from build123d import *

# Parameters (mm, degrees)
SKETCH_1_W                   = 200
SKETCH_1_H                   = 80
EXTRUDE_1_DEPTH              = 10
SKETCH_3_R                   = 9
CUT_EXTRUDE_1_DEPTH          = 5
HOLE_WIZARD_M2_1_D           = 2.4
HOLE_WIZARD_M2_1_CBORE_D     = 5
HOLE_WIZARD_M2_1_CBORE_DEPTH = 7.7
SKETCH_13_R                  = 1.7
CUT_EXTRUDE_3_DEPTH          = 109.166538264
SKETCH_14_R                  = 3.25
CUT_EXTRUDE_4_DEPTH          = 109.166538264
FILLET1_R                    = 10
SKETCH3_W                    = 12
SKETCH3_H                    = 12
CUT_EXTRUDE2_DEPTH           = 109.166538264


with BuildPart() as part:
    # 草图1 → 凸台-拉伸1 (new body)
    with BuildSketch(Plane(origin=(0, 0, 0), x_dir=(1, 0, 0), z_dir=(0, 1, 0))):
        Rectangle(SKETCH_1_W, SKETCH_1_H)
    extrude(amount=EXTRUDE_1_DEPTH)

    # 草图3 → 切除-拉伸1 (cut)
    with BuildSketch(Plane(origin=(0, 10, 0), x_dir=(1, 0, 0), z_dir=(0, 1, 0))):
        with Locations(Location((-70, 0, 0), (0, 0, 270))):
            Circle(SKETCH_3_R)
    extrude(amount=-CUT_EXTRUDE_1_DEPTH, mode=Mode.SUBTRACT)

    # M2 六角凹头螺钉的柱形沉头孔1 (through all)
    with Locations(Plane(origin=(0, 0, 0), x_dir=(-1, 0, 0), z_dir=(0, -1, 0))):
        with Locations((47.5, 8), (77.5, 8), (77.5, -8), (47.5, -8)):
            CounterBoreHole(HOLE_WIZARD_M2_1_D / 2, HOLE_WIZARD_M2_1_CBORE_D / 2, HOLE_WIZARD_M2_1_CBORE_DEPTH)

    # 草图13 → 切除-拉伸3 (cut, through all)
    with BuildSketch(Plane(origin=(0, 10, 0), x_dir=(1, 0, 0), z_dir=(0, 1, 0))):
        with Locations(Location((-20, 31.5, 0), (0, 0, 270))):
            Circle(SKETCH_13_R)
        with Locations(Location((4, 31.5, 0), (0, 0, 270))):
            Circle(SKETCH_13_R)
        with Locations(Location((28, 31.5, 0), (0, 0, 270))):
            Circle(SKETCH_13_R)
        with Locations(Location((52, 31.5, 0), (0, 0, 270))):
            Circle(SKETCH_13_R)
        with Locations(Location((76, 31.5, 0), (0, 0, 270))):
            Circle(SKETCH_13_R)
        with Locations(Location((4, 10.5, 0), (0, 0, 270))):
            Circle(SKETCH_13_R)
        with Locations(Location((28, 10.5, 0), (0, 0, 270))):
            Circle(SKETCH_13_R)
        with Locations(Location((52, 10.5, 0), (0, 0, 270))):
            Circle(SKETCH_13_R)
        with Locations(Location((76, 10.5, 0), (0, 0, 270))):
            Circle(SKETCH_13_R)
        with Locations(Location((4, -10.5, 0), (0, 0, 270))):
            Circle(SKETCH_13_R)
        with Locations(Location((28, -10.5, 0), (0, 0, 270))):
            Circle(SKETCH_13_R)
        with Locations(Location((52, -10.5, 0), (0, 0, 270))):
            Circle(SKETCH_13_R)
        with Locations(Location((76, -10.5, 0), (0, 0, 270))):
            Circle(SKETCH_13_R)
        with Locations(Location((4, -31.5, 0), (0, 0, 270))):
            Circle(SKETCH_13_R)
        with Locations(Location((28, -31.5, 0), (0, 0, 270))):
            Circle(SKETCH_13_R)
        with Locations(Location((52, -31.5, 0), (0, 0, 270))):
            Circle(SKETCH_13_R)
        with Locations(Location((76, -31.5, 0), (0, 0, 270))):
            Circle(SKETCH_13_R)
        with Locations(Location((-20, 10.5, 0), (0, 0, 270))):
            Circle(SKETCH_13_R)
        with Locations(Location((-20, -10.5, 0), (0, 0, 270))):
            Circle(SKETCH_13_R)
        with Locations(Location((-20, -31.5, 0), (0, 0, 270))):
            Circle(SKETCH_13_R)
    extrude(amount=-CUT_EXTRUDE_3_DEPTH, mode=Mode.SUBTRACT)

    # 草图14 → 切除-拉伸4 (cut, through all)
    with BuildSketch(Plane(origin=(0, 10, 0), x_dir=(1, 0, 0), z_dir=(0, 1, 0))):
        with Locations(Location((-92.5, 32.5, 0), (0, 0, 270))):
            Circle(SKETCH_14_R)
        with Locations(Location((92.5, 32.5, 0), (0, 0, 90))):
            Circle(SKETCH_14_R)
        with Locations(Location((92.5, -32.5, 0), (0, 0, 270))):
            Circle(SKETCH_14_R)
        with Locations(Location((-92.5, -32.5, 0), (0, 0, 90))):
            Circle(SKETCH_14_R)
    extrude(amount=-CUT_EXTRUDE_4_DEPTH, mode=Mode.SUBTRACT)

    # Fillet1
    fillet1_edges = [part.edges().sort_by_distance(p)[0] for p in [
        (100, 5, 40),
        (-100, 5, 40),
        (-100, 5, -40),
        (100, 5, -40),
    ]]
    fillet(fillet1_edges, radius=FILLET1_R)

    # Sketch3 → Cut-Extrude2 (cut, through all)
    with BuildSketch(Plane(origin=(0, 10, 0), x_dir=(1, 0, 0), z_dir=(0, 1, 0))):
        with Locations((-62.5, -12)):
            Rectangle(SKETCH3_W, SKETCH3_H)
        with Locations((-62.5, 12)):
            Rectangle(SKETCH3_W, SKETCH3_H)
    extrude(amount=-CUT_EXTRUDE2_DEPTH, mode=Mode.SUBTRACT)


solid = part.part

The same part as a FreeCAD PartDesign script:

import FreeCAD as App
import Part
import Sketcher

V = App.Vector
Q = App.Units.Quantity


def edges_at(feature, points):
    """Names of the edges that pass closest to the given points."""
    edges = feature.Shape.Edges
    near = lambda p: min(range(len(edges)), key=lambda i: edges[i].distToShape(Part.Vertex(*p))[0])
    return sorted({f"Edge{near(p) + 1}" for p in points})

doc = App.newDocument("Part")
body = doc.addObject("PartDesign::Body", "Body")

# Sketch on XZ plane
sketch1 = body.newObject("Sketcher::SketchObject", "Sketch")
sketch1.AttachmentSupport = (doc.getObject("XZ_Plane"), [""])
sketch1.MapMode = "FlatFace"
sketch1.addGeometry(Part.LineSegment(V(-100, -40, 0), V(-100, 40, 0)), False)
sketch1.addGeometry(Part.LineSegment(V(-100, 40, 0), V(100, 40, 0)), False)
sketch1.addGeometry(Part.LineSegment(V(100, 40, 0), V(100, -40, 0)), False)
sketch1.addGeometry(Part.LineSegment(V(100, -40, 0), V(-100, -40, 0)), False)
sketch1.addConstraint(Sketcher.Constraint("Coincident", 0, 2, 1, 1))
sketch1.addConstraint(Sketcher.Constraint("Coincident", 1, 2, 2, 1))
sketch1.addConstraint(Sketcher.Constraint("Coincident", 2, 2, 3, 1))
sketch1.addConstraint(Sketcher.Constraint("Coincident", 3, 2, 0, 1))
sketch1.addConstraint(Sketcher.Constraint("Vertical", 0))
sketch1.addConstraint(Sketcher.Constraint("Horizontal", 1))
sketch1.addConstraint(Sketcher.Constraint("Vertical", 2))
sketch1.addConstraint(Sketcher.Constraint("Horizontal", 3))
sketch1.addConstraint(Sketcher.Constraint("Symmetric", 0, 2, 2, 2, -1, 1))
sketch1.addConstraint(Sketcher.Constraint("DistanceX", 1, 1, 1, 2, Q("200 mm")))
sketch1.addConstraint(Sketcher.Constraint("DistanceY", 0, 1, 0, 2, Q("80 mm")))
pad1 = body.newObject("PartDesign::Pad", "Pad")
pad1.Profile = sketch1
pad1.Length = 10
pad1.Reversed = True

# Sketch on XZ plane
sketch2 = body.newObject("Sketcher::SketchObject", "Sketch001")
sketch2.AttachmentSupport = (doc.getObject("XZ_Plane"), [""])
sketch2.MapMode = "FlatFace"
sketch2.AttachmentOffset = App.Placement(V(0, 0, -10), App.Rotation())
sketch2.addGeometry(Part.Circle(V(-70, 0, 0), V(0, 0, 1), 9), False)
sketch2.addConstraint(Sketcher.Constraint("PointOnObject", 0, 3, -1))
sketch2.addConstraint(Sketcher.Constraint("Diameter", 0, Q("18 mm")))
sketch2.addConstraint(Sketcher.Constraint("DistanceX", 0, 3, -1, 1, Q("70 mm")))
pocket1 = body.newObject("PartDesign::Pocket", "Pocket")
pocket1.Profile = sketch2
pocket1.Length = 5
pocket1.Reversed = True

# Sketch on XZ plane
sketch3 = body.newObject("Sketcher::SketchObject", "Sketch002")
sketch3.AttachmentSupport = (doc.getObject("XZ_Plane"), [""])
sketch3.MapMode = "FlatFace"
sketch3.addGeometry(Part.Circle(V(-47.5, -8, 0), V(0, 0, 1), 1.2), False)
sketch3.addGeometry(Part.Circle(V(-77.5, -8, 0), V(0, 0, 1), 1.2), False)
sketch3.addGeometry(Part.Circle(V(-77.5, 8, 0), V(0, 0, 1), 1.2), False)
sketch3.addGeometry(Part.Circle(V(-47.5, 8, 0), V(0, 0, 1), 1.2), False)
sketch3.addConstraint(Sketcher.Constraint("Equal", 0, 1))
sketch3.addConstraint(Sketcher.Constraint("Equal", 1, 2))
sketch3.addConstraint(Sketcher.Constraint("Equal", 2, 3))
sketch3.addConstraint(Sketcher.Constraint("Symmetric", 1, 3, 2, 3, -1))
sketch3.addConstraint(Sketcher.Constraint("Symmetric", 0, 3, 3, 3, -1))
sketch3.addConstraint(Sketcher.Constraint("Horizontal", 0, 3, 1, 3))
sketch3.addConstraint(Sketcher.Constraint("Diameter", 0, Q("2.4 mm")))
sketch3.addConstraint(Sketcher.Constraint("DistanceY", 0, 3, -1, 1, Q("8 mm")))
sketch3.addConstraint(Sketcher.Constraint("DistanceX", 1, 3, 0, 3, Q("30 mm")))
sketch3.addConstraint(Sketcher.Constraint("DistanceX", 0, 3, -1, 1, Q("47.5 mm")))
doc.recompute()
hole = body.newObject("PartDesign::Hole", "Hole")
hole.Profile = sketch3
hole.ThreadType = "None"
hole.Diameter = 2.4
hole.DepthType = "ThroughAll"
hole.HoleCutType = "Counterbore"
hole.HoleCutDiameter = 5
hole.HoleCutDepth = 7.7

# Sketch on XZ plane
sketch4 = body.newObject("Sketcher::SketchObject", "Sketch003")
sketch4.AttachmentSupport = (doc.getObject("XZ_Plane"), [""])
sketch4.MapMode = "FlatFace"
sketch4.AttachmentOffset = App.Placement(V(0, 0, -10), App.Rotation())
sketch4.addGeometry(Part.Circle(V(-20, -31.5, 0), V(0, 0, 1), 1.7), False)
sketch4.addGeometry(Part.Circle(V(4, -31.5, 0), V(0, 0, 1), 1.7), False)
sketch4.addGeometry(Part.Circle(V(28, -31.5, 0), V(0, 0, 1), 1.7), False)
sketch4.addGeometry(Part.Circle(V(52, -31.5, 0), V(0, 0, 1), 1.7), False)
sketch4.addGeometry(Part.Circle(V(76, -31.5, 0), V(0, 0, 1), 1.7), False)
sketch4.addGeometry(Part.Circle(V(4, -10.5, 0), V(0, 0, 1), 1.7), False)
sketch4.addGeometry(Part.Circle(V(28, -10.5, 0), V(0, 0, 1), 1.7), False)
sketch4.addGeometry(Part.Circle(V(52, -10.5, 0), V(0, 0, 1), 1.7), False)
sketch4.addGeometry(Part.Circle(V(76, -10.5, 0), V(0, 0, 1), 1.7), False)
sketch4.addGeometry(Part.Circle(V(4, 10.5, 0), V(0, 0, 1), 1.7), False)
sketch4.addGeometry(Part.Circle(V(28, 10.5, 0), V(0, 0, 1), 1.7), False)
sketch4.addGeometry(Part.Circle(V(52, 10.5, 0), V(0, 0, 1), 1.7), False)
sketch4.addGeometry(Part.Circle(V(76, 10.5, 0), V(0, 0, 1), 1.7), False)
sketch4.addGeometry(Part.Circle(V(4, 31.5, 0), V(0, 0, 1), 1.7), False)
sketch4.addGeometry(Part.Circle(V(28, 31.5, 0), V(0, 0, 1), 1.7), False)
sketch4.addGeometry(Part.Circle(V(52, 31.5, 0), V(0, 0, 1), 1.7), False)
sketch4.addGeometry(Part.Circle(V(76, 31.5, 0), V(0, 0, 1), 1.7), False)
sketch4.addGeometry(Part.Circle(V(-20, -10.5, 0), V(0, 0, 1), 1.7), False)
sketch4.addGeometry(Part.Circle(V(-20, 10.5, 0), V(0, 0, 1), 1.7), False)
sketch4.addGeometry(Part.Circle(V(-20, 31.5, 0), V(0, 0, 1), 1.7), False)
sketch4.addConstraint(Sketcher.Constraint("Equal", 0, 1))
sketch4.addConstraint(Sketcher.Constraint("Equal", 1, 2))
sketch4.addConstraint(Sketcher.Constraint("Equal", 2, 3))
sketch4.addConstraint(Sketcher.Constraint("Equal", 3, 4))
sketch4.addConstraint(Sketcher.Constraint("Equal", 4, 5))
sketch4.addConstraint(Sketcher.Constraint("Equal", 5, 6))
sketch4.addConstraint(Sketcher.Constraint("Equal", 6, 7))
sketch4.addConstraint(Sketcher.Constraint("Equal", 7, 8))
sketch4.addConstraint(Sketcher.Constraint("Equal", 8, 9))
sketch4.addConstraint(Sketcher.Constraint("Equal", 9, 10))
sketch4.addConstraint(Sketcher.Constraint("Equal", 10, 11))
sketch4.addConstraint(Sketcher.Constraint("Equal", 11, 12))
sketch4.addConstraint(Sketcher.Constraint("Equal", 12, 13))
sketch4.addConstraint(Sketcher.Constraint("Equal", 13, 14))
sketch4.addConstraint(Sketcher.Constraint("Equal", 14, 15))
sketch4.addConstraint(Sketcher.Constraint("Equal", 15, 16))
sketch4.addConstraint(Sketcher.Constraint("Equal", 16, 17))
sketch4.addConstraint(Sketcher.Constraint("Equal", 17, 18))
sketch4.addConstraint(Sketcher.Constraint("Equal", 18, 19))
sketch4.addConstraint(Sketcher.Constraint("Symmetric", 5, 3, 9, 3, -1))
sketch4.addConstraint(Sketcher.Constraint("Symmetric", 6, 3, 10, 3, -1))
sketch4.addConstraint(Sketcher.Constraint("Symmetric", 7, 3, 11, 3, -1))
sketch4.addConstraint(Sketcher.Constraint("Symmetric", 8, 3, 12, 3, -1))
sketch4.addConstraint(Sketcher.Constraint("Symmetric", 1, 3, 13, 3, -1))
sketch4.addConstraint(Sketcher.Constraint("Symmetric", 2, 3, 14, 3, -1))
sketch4.addConstraint(Sketcher.Constraint("Symmetric", 3, 3, 15, 3, -1))
sketch4.addConstraint(Sketcher.Constraint("Symmetric", 4, 3, 16, 3, -1))
sketch4.addConstraint(Sketcher.Constraint("Symmetric", 17, 3, 18, 3, -1))
sketch4.addConstraint(Sketcher.Constraint("Symmetric", 0, 3, 19, 3, -1))
sketch4.addConstraint(Sketcher.Constraint("Horizontal", 0, 3, 1, 3))
sketch4.addConstraint(Sketcher.Constraint("Horizontal", 1, 3, 2, 3))
sketch4.addConstraint(Sketcher.Constraint("Horizontal", 2, 3, 3, 3))
sketch4.addConstraint(Sketcher.Constraint("Horizontal", 3, 3, 4, 3))
sketch4.addConstraint(Sketcher.Constraint("Horizontal", 5, 3, 6, 3))
sketch4.addConstraint(Sketcher.Constraint("Horizontal", 6, 3, 7, 3))
sketch4.addConstraint(Sketcher.Constraint("Horizontal", 7, 3, 8, 3))
sketch4.addConstraint(Sketcher.Constraint("Horizontal", 8, 3, 17, 3))
sketch4.addConstraint(Sketcher.Constraint("Vertical", 1, 3, 5, 3))
sketch4.addConstraint(Sketcher.Constraint("Vertical", 2, 3, 6, 3))
sketch4.addConstraint(Sketcher.Constraint("Vertical", 3, 3, 7, 3))
sketch4.addConstraint(Sketcher.Constraint("Vertical", 4, 3, 8, 3))
sketch4.addConstraint(Sketcher.Constraint("Vertical", 0, 3, 17, 3))
sketch4.addConstraint(Sketcher.Constraint("Diameter", 0, Q("3.4 mm")))
sketch4.addConstraint(Sketcher.Constraint("DistanceX", 0, 3, -1, 1, Q("20 mm")))
sketch4.addConstraint(Sketcher.Constraint("DistanceX", -1, 1, 1, 3, Q("4 mm")))
sketch4.addConstraint(Sketcher.Constraint("DistanceX", -1, 1, 2, 3, Q("28 mm")))
sketch4.addConstraint(Sketcher.Constraint("DistanceX", -1, 1, 3, 3, Q("52 mm")))
sketch4.addConstraint(Sketcher.Constraint("DistanceX", -1, 1, 4, 3, Q("76 mm")))
sketch4.addConstraint(Sketcher.Constraint("DistanceY", 1, 3, 5, 3, Q("21 mm")))
sketch4.addConstraint(Sketcher.Constraint("DistanceY", 5, 3, 9, 3, Q("21 mm")))
pocket2 = body.newObject("PartDesign::Pocket", "Pocket001")
pocket2.Profile = sketch4
pocket2.Type = "ThroughAll"
pocket2.Reversed = True

# Sketch on XZ plane
sketch5 = body.newObject("Sketcher::SketchObject", "Sketch004")
sketch5.AttachmentSupport = (doc.getObject("XZ_Plane"), [""])
sketch5.MapMode = "FlatFace"
sketch5.AttachmentOffset = App.Placement(V(0, 0, -10), App.Rotation())
sketch5.addGeometry(Part.Circle(V(-92.5, -32.5, 0), V(0, 0, 1), 3.2), False)
sketch5.addGeometry(Part.Circle(V(92.5, -32.5, 0), V(0, 0, 1), 3.2), False)
sketch5.addGeometry(Part.Circle(V(92.5, 32.5, 0), V(0, 0, 1), 3.2), False)
sketch5.addGeometry(Part.Circle(V(-92.5, 32.5, 0), V(0, 0, 1), 3.2), False)
sketch5.addConstraint(Sketcher.Constraint("Equal", 0, 1))
sketch5.addConstraint(Sketcher.Constraint("Equal", 1, 2))
sketch5.addConstraint(Sketcher.Constraint("Equal", 2, 3))
sketch5.addConstraint(Sketcher.Constraint("Symmetric", 0, 3, 2, 3, -1, 1))
sketch5.addConstraint(Sketcher.Constraint("Symmetric", 1, 3, 3, 3, -1, 1))
sketch5.addConstraint(Sketcher.Constraint("Symmetric", 0, 3, 1, 3, -2))
sketch5.addConstraint(Sketcher.Constraint("Diameter", 0, Q("6.5 mm")))
sketch5.addConstraint(Sketcher.Constraint("DistanceX", 0, 3, 1, 3, Q("185 mm")))
sketch5.addConstraint(Sketcher.Constraint("DistanceY", 1, 3, 2, 3, Q("65 mm")))
pocket3 = body.newObject("PartDesign::Pocket", "Pocket002")
pocket3.Profile = sketch5
pocket3.Type = "ThroughAll"
pocket3.Reversed = True
doc.recompute()

fillet = body.newObject("PartDesign::Fillet", "Fillet")
fillet.Base = (pocket3, edges_at(pocket3, [
    (100, 5, 40),
    (-100, 5, 40),
    (-100, 5, -40),
    (100, 5, -40),
]))
fillet.Radius = 10

# Sketch on XZ plane
sketch6 = body.newObject("Sketcher::SketchObject", "Sketch005")
sketch6.AttachmentSupport = (doc.getObject("XZ_Plane"), [""])
sketch6.MapMode = "FlatFace"
sketch6.AttachmentOffset = App.Placement(V(0, 0, -10), App.Rotation())
sketch6.addGeometry(Part.LineSegment(V(-68, 6, 0), V(-68, 18, 0)), False)
sketch6.addGeometry(Part.LineSegment(V(-68, 18, 0), V(-56, 18, 0)), False)
sketch6.addGeometry(Part.LineSegment(V(-56, 18, 0), V(-56, 6, 0)), False)
sketch6.addGeometry(Part.LineSegment(V(-56, 6, 0), V(-68, 6, 0)), False)
sketch6.addGeometry(Part.LineSegment(V(-68, -18, 0), V(-68, -6, 0)), False)
sketch6.addGeometry(Part.LineSegment(V(-68, -6, 0), V(-56, -6, 0)), False)
sketch6.addGeometry(Part.LineSegment(V(-56, -6, 0), V(-56, -18, 0)), False)
sketch6.addGeometry(Part.LineSegment(V(-56, -18, 0), V(-68, -18, 0)), False)
sketch6.addConstraint(Sketcher.Constraint("Coincident", 0, 2, 1, 1))
sketch6.addConstraint(Sketcher.Constraint("Coincident", 1, 2, 2, 1))
sketch6.addConstraint(Sketcher.Constraint("Coincident", 2, 2, 3, 1))
sketch6.addConstraint(Sketcher.Constraint("Coincident", 3, 2, 0, 1))
sketch6.addConstraint(Sketcher.Constraint("Coincident", 4, 2, 5, 1))
sketch6.addConstraint(Sketcher.Constraint("Coincident", 5, 2, 6, 1))
sketch6.addConstraint(Sketcher.Constraint("Coincident", 6, 2, 7, 1))
sketch6.addConstraint(Sketcher.Constraint("Coincident", 7, 2, 4, 1))
sketch6.addConstraint(Sketcher.Constraint("Vertical", 0))
sketch6.addConstraint(Sketcher.Constraint("Horizontal", 1))
sketch6.addConstraint(Sketcher.Constraint("Vertical", 2))
sketch6.addConstraint(Sketcher.Constraint("Horizontal", 3))
sketch6.addConstraint(Sketcher.Constraint("Vertical", 4))
sketch6.addConstraint(Sketcher.Constraint("Horizontal", 5))
sketch6.addConstraint(Sketcher.Constraint("Vertical", 6))
sketch6.addConstraint(Sketcher.Constraint("Horizontal", 7))
sketch6.addConstraint(Sketcher.Constraint("Symmetric", 3, 2, 4, 2, -1))
sketch6.addConstraint(Sketcher.Constraint("Symmetric", 1, 2, 6, 2, -1))
sketch6.addConstraint(Sketcher.Constraint("Equal", 7, 0))
sketch6.addConstraint(Sketcher.Constraint("DistanceX", 1, 1, 1, 2, Q("12 mm")))
sketch6.addConstraint(Sketcher.Constraint("DistanceY", -1, 1, 0, 2, Q("18 mm")))
sketch6.addConstraint(Sketcher.Constraint("DistanceX", 0, 2, -1, 1, Q("68.5 mm")))
pocket4 = body.newObject("PartDesign::Pocket", "Pocket003")
pocket4.Profile = sketch6
pocket4.Type = "ThroughAll"
pocket4.Reversed = True

doc.recompute()
